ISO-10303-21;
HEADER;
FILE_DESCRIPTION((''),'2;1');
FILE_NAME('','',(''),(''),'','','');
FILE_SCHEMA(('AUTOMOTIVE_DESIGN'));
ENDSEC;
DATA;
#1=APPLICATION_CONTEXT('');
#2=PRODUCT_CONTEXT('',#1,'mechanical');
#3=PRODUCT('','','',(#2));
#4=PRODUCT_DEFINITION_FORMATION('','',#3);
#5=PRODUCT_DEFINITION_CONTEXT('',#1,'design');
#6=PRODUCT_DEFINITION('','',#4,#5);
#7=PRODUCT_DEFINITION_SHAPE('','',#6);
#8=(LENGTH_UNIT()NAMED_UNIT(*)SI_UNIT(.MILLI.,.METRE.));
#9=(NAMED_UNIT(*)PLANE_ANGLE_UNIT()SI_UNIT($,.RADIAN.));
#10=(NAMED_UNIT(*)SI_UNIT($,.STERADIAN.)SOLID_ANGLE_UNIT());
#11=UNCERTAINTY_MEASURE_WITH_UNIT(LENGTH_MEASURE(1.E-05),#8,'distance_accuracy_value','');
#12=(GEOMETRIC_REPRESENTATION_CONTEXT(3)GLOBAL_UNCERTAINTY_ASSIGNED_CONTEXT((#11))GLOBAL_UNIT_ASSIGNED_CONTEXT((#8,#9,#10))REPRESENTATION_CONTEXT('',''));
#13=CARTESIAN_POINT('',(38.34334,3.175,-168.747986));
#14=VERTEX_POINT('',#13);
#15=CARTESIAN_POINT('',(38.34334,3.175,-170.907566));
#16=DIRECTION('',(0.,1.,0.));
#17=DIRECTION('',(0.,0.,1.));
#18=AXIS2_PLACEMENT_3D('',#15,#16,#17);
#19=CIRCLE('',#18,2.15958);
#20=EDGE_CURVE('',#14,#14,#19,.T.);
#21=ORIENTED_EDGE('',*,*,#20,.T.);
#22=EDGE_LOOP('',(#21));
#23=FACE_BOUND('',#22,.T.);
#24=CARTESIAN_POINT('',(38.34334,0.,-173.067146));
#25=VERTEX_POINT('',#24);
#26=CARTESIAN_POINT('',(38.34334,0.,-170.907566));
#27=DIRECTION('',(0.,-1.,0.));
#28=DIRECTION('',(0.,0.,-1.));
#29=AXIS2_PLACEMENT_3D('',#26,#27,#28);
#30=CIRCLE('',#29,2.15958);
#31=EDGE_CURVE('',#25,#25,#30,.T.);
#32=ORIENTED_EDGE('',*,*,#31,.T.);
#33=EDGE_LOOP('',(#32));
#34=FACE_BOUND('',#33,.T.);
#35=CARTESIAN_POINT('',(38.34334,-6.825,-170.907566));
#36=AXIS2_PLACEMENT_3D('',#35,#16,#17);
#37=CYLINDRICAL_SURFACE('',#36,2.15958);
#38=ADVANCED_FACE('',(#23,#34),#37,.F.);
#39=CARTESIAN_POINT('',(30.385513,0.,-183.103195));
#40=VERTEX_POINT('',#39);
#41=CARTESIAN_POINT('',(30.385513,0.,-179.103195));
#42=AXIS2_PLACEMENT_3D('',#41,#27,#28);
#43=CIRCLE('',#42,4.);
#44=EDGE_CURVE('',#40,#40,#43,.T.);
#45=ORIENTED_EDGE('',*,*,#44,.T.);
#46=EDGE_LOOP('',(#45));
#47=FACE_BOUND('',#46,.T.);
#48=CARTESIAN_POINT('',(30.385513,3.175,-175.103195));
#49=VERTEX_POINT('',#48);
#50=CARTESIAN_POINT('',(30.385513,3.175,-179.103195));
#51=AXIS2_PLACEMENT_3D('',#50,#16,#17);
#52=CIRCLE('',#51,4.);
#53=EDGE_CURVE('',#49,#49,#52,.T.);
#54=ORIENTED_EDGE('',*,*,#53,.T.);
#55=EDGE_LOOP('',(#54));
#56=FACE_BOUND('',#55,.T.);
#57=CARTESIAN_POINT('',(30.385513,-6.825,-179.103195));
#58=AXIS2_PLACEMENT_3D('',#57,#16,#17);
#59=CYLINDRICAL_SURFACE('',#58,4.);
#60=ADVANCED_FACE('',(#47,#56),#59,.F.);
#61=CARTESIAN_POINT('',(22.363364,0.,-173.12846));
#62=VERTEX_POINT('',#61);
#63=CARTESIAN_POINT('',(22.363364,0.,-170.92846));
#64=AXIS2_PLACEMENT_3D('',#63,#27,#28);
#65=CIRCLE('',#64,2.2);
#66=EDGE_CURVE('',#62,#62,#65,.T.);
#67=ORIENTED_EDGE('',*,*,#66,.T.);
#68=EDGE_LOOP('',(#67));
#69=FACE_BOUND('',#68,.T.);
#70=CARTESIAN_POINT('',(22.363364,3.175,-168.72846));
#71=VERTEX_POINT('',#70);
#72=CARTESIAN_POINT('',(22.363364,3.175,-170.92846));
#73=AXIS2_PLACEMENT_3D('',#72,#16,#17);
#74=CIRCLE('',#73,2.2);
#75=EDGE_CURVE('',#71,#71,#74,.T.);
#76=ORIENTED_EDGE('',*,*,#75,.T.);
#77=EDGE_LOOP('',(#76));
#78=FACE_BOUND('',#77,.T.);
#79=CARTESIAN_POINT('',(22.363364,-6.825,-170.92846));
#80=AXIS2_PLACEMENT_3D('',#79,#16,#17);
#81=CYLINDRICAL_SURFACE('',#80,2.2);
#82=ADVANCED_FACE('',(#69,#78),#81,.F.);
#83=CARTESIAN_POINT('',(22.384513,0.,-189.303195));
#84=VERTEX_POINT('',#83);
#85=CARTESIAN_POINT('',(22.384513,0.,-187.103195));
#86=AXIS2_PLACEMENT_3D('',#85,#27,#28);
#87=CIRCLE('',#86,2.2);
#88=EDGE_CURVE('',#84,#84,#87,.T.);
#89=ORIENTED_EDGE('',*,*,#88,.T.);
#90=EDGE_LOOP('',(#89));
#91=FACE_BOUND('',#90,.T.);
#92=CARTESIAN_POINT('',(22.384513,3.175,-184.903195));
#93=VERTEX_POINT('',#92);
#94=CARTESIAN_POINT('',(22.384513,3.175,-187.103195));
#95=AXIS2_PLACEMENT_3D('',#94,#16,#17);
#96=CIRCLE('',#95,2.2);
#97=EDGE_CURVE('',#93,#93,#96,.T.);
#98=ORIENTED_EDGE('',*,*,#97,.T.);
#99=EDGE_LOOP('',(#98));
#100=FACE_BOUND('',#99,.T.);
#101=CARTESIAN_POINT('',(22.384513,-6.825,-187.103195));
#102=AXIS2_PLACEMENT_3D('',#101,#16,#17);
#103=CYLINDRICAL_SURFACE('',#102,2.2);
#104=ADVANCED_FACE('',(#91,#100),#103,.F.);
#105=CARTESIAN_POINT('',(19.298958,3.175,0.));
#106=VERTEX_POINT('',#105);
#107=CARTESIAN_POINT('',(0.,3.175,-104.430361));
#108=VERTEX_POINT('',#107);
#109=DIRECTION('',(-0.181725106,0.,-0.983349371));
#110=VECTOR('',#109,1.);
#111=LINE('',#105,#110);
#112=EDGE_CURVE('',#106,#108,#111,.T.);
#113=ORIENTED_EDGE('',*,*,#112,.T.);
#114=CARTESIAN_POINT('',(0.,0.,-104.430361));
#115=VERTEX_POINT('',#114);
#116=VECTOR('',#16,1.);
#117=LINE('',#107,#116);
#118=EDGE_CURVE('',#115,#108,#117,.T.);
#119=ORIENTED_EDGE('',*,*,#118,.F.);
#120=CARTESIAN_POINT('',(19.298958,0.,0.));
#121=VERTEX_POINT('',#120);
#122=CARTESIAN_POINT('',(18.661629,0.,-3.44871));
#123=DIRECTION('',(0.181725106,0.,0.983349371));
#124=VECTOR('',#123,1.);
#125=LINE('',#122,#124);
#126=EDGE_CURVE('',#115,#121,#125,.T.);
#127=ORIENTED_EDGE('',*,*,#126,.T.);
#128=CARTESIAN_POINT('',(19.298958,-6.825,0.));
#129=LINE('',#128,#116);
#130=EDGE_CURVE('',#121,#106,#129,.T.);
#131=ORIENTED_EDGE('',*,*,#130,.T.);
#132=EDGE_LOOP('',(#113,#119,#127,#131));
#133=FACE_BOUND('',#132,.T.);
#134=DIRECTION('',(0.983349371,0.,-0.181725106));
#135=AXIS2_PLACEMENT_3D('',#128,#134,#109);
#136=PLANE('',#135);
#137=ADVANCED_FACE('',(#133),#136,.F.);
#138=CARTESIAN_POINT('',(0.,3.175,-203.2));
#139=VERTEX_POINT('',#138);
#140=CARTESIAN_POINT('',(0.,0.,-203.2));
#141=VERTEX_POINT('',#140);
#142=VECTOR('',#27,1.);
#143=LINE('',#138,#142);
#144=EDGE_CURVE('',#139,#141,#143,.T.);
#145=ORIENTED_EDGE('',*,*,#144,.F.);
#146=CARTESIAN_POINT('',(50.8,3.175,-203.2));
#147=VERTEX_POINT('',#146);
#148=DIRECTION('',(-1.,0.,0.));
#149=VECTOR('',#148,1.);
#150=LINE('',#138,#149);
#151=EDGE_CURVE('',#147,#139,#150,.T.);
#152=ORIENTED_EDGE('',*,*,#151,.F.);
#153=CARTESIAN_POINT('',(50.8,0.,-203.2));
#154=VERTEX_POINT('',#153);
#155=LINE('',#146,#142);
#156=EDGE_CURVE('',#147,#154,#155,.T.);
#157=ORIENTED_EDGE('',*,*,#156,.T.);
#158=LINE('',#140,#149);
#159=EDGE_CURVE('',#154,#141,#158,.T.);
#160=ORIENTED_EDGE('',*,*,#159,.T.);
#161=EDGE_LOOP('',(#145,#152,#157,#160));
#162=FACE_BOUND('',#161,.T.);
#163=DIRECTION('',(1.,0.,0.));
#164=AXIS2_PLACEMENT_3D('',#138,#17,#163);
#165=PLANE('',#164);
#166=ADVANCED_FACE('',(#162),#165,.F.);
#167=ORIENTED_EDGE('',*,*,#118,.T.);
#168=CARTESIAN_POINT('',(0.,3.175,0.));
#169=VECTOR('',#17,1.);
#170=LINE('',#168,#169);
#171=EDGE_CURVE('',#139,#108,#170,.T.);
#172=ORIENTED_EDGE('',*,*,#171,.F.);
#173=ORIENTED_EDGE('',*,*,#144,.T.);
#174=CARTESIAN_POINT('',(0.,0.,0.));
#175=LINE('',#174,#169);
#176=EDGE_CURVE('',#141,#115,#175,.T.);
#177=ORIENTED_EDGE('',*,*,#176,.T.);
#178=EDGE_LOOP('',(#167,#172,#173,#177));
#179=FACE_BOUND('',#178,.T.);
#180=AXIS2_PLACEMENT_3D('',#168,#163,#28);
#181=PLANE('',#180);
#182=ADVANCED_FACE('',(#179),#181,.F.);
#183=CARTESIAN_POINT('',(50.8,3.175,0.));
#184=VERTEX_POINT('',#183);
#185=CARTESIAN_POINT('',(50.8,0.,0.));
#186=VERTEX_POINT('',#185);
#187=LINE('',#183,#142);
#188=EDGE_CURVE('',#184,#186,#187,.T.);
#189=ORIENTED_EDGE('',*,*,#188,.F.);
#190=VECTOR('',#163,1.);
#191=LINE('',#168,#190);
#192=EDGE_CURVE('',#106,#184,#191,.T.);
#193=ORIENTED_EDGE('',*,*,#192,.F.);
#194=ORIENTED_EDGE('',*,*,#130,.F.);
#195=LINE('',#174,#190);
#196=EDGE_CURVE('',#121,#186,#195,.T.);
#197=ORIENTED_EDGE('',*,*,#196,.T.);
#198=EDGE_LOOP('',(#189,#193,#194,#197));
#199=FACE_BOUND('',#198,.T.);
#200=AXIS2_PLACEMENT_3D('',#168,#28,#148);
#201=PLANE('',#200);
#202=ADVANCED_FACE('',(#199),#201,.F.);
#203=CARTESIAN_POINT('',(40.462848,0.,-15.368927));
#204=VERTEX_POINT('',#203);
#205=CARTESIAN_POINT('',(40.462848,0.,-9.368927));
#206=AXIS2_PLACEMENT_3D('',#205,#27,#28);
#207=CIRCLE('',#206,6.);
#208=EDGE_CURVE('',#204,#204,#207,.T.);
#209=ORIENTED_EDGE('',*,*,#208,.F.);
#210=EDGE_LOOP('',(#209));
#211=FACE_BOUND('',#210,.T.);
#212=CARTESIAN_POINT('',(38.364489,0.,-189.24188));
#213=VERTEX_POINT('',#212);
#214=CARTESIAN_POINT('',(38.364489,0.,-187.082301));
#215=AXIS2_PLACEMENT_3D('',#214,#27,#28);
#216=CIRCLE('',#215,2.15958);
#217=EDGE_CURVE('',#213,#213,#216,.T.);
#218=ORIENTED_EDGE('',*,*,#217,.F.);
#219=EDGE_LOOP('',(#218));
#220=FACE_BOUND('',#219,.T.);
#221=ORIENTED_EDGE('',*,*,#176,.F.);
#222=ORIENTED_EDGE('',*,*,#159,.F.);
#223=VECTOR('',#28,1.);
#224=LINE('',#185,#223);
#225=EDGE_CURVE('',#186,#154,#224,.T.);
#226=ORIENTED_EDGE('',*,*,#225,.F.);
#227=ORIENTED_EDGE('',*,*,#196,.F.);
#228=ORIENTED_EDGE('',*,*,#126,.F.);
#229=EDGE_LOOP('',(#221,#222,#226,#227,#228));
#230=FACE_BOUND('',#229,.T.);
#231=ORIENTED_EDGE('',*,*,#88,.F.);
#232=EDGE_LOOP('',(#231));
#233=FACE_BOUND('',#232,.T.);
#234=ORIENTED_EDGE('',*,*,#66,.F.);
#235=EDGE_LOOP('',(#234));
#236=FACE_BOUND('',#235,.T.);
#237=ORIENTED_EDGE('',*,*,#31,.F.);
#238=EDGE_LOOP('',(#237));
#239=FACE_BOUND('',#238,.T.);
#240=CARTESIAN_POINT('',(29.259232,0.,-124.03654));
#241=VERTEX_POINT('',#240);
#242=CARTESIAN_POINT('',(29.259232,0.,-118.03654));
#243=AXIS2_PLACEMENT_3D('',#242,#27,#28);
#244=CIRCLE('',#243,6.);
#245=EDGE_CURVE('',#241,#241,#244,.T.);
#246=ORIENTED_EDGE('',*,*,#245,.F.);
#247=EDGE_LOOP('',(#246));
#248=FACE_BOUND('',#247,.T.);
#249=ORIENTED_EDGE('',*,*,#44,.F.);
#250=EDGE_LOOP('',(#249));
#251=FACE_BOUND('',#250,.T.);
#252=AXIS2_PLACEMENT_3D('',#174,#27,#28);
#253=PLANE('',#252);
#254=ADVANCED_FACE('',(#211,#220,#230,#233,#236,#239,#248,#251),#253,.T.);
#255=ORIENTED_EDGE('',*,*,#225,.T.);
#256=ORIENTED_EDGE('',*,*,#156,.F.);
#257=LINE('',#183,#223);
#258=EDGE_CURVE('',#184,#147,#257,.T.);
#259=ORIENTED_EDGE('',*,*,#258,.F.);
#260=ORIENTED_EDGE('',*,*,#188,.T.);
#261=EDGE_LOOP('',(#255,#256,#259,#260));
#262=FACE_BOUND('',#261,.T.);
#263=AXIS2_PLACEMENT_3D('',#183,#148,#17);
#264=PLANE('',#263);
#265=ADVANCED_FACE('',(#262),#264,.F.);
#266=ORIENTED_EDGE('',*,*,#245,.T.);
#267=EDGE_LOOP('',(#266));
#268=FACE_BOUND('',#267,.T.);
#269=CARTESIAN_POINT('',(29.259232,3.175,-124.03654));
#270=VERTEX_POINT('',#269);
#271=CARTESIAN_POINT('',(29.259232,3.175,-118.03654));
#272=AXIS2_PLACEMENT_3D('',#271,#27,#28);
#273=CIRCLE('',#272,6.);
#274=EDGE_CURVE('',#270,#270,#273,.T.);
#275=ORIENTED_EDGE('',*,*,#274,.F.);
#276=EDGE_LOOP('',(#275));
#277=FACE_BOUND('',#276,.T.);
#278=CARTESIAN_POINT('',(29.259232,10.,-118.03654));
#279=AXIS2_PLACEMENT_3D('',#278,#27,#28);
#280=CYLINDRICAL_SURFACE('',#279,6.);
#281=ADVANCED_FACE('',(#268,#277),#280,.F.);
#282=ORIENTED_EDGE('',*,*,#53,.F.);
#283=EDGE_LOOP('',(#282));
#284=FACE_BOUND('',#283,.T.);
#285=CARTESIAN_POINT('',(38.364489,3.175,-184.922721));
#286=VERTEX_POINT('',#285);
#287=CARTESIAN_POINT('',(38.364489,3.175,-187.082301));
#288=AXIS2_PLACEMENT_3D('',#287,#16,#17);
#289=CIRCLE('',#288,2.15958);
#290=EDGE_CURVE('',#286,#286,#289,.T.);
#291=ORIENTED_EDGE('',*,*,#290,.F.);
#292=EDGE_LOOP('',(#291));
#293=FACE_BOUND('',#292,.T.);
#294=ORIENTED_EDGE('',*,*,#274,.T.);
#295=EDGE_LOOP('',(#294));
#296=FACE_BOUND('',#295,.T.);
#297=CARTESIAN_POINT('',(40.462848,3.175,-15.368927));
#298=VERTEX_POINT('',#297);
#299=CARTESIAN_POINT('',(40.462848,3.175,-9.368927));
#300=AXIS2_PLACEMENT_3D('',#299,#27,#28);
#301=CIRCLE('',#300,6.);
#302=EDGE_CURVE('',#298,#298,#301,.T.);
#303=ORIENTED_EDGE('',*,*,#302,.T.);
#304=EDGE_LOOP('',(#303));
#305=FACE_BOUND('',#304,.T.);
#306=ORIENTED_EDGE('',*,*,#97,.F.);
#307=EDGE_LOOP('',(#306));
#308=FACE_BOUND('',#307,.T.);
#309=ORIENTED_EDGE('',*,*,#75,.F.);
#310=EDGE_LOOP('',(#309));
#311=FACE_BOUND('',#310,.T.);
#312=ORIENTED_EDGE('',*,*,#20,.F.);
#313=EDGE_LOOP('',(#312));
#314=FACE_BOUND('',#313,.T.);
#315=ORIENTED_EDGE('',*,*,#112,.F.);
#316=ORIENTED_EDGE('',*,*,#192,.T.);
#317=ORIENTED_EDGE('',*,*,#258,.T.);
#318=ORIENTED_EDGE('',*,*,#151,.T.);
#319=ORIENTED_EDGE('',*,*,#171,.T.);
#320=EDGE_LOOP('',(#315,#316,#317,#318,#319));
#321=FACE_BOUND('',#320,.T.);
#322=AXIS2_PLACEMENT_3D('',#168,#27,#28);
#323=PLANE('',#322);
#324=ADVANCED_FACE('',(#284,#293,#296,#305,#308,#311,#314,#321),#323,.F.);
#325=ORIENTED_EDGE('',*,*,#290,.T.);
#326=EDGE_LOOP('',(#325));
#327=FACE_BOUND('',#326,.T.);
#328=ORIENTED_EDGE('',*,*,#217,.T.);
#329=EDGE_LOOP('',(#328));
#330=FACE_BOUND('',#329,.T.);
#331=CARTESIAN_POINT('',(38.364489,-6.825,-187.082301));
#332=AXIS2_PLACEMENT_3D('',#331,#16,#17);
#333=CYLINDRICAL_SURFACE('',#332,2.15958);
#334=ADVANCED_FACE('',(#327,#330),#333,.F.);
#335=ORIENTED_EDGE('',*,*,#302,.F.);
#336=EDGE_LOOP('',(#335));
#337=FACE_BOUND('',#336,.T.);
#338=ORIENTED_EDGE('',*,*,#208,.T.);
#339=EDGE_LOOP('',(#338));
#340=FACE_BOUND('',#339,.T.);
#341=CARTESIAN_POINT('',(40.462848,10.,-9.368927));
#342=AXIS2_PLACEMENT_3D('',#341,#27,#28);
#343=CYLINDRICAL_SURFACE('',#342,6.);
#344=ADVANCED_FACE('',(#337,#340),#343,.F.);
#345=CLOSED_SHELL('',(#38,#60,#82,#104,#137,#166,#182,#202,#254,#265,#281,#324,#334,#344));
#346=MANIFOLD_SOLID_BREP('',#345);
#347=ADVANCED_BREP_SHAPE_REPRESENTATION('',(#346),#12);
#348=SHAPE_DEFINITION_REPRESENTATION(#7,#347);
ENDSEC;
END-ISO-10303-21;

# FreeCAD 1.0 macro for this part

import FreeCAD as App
import Part
import Sketcher
from FreeCAD import Vector


def add_polygon(sketch, points):
    """Adds a closed chain of lines whose ends are joined by coincident constraints."""
    first, n = sketch.GeometryCount, len(points)
    for a, b in zip(points, points[1:] + points[:1]):
        sketch.addGeometry(Part.LineSegment(App.Vector(*a, 0), App.Vector(*b, 0)), False)
    for i in range(n):
        sketch.addConstraint(Sketcher.Constraint("Coincident", first + i, 2, first + (i + 1) % n, 1))

doc = App.newDocument("Part")
params = doc.addObject("Spreadsheet::Sheet", "Params")
for row, (alias, value) in enumerate([
    ("sketch1_width", "50.8 mm"),
    ("sketch1_height", "203.2 mm"),
    ("pad1_length", "3.175 mm"),
    ("sketch2_diameter", "8 mm"),
    ("sketch2_diameter2", "4.4 mm"),
    ("pocket1_length", "10 mm"),
    ("sketch3_diameter", "12 mm"),
    ("pocket2_length", "10 mm"),
    ("pocket3_length", "10 mm"),
], start=1):
    params.set(f"A{row}", alias)
    params.set(f"B{row}", "=" + value)
    params.setAlias(f"B{row}", alias)

body = doc.addObject("PartDesign::Body", "Body")

sketch1 = body.newObject("Sketcher::SketchObject", "Sketch")
sketch1.AttachmentSupport = (doc.getObject("XZ_Plane"), [""])
sketch1.MapMode = "FlatFace"
add_polygon(sketch1, [(0, -203), (0, 0), (51, 0), (51, -203)])
sketch1.addConstraint([
    Sketcher.Constraint("Vertical", 0),
    Sketcher.Constraint("Horizontal", 1),
    Sketcher.Constraint("Vertical", 2),
    Sketcher.Constraint("Horizontal", 3),
    Sketcher.Constraint("Coincident", 0, 2, -1, 1),
    Sketcher.Constraint("DistanceX", 1, 1, 1, 2, 50.8),
    Sketcher.Constraint("DistanceY", 0, 1, 0, 2, 203.2),
])
sketch1.setExpression("Constraints[9]", "Params.sketch1_width")
sketch1.setExpression("Constraints[10]", "Params.sketch1_height")
pad1 = body.newObject("PartDesign::Pad", "Pad")
pad1.Profile = sketch1
pad1.setExpression("Length", "Params.pad1_length")
pad1.Reversed = True

sketch2 = body.newObject("Sketcher::SketchObject", "Sketch001")
sketch2.AttachmentSupport = (doc.getObject("XZ_Plane"), [""])
sketch2.MapMode = "FlatFace"
sketch2.AttachmentOffset = App.Placement(Vector(0, 0, -3.175), App.Rotation())
sketch2.addGeometry([
    Part.Circle(Vector(22.4, -187.1, 0), Vector(0, 0, 1), 2.2),
    Part.Circle(Vector(38.4, -187.1, 0), Vector(0, 0, 1), 2.2),
    Part.Circle(Vector(22.4, -170.9, 0), Vector(0, 0, 1), 2.2),
    Part.Circle(Vector(38.3, -170.9, 0), Vector(0, 0, 1), 2.2),
    Part.Circle(Vector(30.4, -179.1, 0), Vector(0, 0, 1), 4),
], False)
sketch2.addConstraint([
    Sketcher.Constraint("Equal", 0, 2),
    Sketcher.Constraint("Equal", 1, 3),
    Sketcher.Constraint("Diameter", 4, 8.0),
    Sketcher.Constraint("Diameter", 0, 4.4),
    Sketcher.Constraint("DistanceY", 0, 3, 4, 3, 8.0),
    Sketcher.Constraint("Diameter", 1, 4.31916),
    Sketcher.Constraint("DistanceX", 0, 3, 4, 3, 8.001),
    Sketcher.Constraint("DistanceY", 1, 3, -1, 1, 187.082301),
    Sketcher.Constraint("DistanceX", -1, 1, 1, 3, 38.364489),
    Sketcher.Constraint("DistanceY", 2, 3, -1, 1, 170.92846),
    Sketcher.Constraint("DistanceX", -1, 1, 3, 3, 38.34334),
    Sketcher.Constraint("DistanceX", 2, 3, 0, 3, 0.021149),
    Sketcher.Constraint("DistanceY", 0, 3, 3, 3, 16.19563),
    Sketcher.Constraint("DistanceX", -1, 1, 0, 3, 22.384513),
    Sketcher.Constraint("DistanceY", 0, 3, -1, 1, 187.103195),
])
sketch2.setExpression("Constraints[2]", "Params.sketch2_diameter")
sketch2.setExpression("Constraints[3]", "Params.sketch2_diameter2")
pocket1 = body.newObject("PartDesign::Pocket", "Pocket")
pocket1.Profile = sketch2
pocket1.setExpression("Length", "Params.pocket1_length")
pocket1.Reversed = True

sketch3 = body.newObject("Sketcher::SketchObject", "Sketch002")
sketch3.AttachmentSupport = (doc.getObject("XZ_Plane"), [""])
sketch3.MapMode = "FlatFace"
sketch3.addGeometry([
    Part.Circle(Vector(40, -9, 0), Vector(0, 0, 1), 6),
    Part.Circle(Vector(29, -118, 0), Vector(0, 0, 1), 6),
], False)
sketch3.addConstraint([
    Sketcher.Constraint("Equal", 0, 1),
    Sketcher.Constraint("Diameter", 0, 12.0),
    Sketcher.Constraint("DistanceX", -1, 1, 0, 3, 40.462848),
    Sketcher.Constraint("DistanceY", 1, 3, -1, 1, 118.03654),
    Sketcher.Constraint("DistanceY", 0, 3, -1, 1, 9.368927),
    Sketcher.Constraint("DistanceX", -1, 1, 1, 3, 29.259232),
])
sketch3.setExpression("Constraints[1]", "Params.sketch3_diameter")
pocket2 = body.newObject("PartDesign::Pocket", "Pocket001")
pocket2.Profile = sketch3
pocket2.setExpression("Length", "Params.pocket2_length")

sketch4 = body.newObject("Sketcher::SketchObject", "Sketch003")
sketch4.AttachmentSupport = (doc.getObject("XZ_Plane"), [""])
sketch4.MapMode = "FlatFace"
sketch4.AttachmentOffset = App.Placement(Vector(0, 0, -3.175), App.Rotation())
add_polygon(sketch4, [(0, 0), (19, 0), (0, -105)])
sketch4.addConstraint([
    Sketcher.Constraint("Horizontal", 0),
    Sketcher.Constraint("Coincident", 2, 2, -1, 1),
    Sketcher.Constraint("Distance", 2, 105.431701),
    Sketcher.Constraint("DistanceX", 0, 1, 0, 2, 19.298958),
    Sketcher.Constraint("DistanceX", 1, 2, -1, 1, 0.18502),
])
pocket3 = body.newObject("PartDesign::Pocket", "Pocket002")
pocket3.Profile = sketch4
pocket3.setExpression("Length", "Params.pocket3_length")
pocket3.Reversed = True

doc.recompute()
